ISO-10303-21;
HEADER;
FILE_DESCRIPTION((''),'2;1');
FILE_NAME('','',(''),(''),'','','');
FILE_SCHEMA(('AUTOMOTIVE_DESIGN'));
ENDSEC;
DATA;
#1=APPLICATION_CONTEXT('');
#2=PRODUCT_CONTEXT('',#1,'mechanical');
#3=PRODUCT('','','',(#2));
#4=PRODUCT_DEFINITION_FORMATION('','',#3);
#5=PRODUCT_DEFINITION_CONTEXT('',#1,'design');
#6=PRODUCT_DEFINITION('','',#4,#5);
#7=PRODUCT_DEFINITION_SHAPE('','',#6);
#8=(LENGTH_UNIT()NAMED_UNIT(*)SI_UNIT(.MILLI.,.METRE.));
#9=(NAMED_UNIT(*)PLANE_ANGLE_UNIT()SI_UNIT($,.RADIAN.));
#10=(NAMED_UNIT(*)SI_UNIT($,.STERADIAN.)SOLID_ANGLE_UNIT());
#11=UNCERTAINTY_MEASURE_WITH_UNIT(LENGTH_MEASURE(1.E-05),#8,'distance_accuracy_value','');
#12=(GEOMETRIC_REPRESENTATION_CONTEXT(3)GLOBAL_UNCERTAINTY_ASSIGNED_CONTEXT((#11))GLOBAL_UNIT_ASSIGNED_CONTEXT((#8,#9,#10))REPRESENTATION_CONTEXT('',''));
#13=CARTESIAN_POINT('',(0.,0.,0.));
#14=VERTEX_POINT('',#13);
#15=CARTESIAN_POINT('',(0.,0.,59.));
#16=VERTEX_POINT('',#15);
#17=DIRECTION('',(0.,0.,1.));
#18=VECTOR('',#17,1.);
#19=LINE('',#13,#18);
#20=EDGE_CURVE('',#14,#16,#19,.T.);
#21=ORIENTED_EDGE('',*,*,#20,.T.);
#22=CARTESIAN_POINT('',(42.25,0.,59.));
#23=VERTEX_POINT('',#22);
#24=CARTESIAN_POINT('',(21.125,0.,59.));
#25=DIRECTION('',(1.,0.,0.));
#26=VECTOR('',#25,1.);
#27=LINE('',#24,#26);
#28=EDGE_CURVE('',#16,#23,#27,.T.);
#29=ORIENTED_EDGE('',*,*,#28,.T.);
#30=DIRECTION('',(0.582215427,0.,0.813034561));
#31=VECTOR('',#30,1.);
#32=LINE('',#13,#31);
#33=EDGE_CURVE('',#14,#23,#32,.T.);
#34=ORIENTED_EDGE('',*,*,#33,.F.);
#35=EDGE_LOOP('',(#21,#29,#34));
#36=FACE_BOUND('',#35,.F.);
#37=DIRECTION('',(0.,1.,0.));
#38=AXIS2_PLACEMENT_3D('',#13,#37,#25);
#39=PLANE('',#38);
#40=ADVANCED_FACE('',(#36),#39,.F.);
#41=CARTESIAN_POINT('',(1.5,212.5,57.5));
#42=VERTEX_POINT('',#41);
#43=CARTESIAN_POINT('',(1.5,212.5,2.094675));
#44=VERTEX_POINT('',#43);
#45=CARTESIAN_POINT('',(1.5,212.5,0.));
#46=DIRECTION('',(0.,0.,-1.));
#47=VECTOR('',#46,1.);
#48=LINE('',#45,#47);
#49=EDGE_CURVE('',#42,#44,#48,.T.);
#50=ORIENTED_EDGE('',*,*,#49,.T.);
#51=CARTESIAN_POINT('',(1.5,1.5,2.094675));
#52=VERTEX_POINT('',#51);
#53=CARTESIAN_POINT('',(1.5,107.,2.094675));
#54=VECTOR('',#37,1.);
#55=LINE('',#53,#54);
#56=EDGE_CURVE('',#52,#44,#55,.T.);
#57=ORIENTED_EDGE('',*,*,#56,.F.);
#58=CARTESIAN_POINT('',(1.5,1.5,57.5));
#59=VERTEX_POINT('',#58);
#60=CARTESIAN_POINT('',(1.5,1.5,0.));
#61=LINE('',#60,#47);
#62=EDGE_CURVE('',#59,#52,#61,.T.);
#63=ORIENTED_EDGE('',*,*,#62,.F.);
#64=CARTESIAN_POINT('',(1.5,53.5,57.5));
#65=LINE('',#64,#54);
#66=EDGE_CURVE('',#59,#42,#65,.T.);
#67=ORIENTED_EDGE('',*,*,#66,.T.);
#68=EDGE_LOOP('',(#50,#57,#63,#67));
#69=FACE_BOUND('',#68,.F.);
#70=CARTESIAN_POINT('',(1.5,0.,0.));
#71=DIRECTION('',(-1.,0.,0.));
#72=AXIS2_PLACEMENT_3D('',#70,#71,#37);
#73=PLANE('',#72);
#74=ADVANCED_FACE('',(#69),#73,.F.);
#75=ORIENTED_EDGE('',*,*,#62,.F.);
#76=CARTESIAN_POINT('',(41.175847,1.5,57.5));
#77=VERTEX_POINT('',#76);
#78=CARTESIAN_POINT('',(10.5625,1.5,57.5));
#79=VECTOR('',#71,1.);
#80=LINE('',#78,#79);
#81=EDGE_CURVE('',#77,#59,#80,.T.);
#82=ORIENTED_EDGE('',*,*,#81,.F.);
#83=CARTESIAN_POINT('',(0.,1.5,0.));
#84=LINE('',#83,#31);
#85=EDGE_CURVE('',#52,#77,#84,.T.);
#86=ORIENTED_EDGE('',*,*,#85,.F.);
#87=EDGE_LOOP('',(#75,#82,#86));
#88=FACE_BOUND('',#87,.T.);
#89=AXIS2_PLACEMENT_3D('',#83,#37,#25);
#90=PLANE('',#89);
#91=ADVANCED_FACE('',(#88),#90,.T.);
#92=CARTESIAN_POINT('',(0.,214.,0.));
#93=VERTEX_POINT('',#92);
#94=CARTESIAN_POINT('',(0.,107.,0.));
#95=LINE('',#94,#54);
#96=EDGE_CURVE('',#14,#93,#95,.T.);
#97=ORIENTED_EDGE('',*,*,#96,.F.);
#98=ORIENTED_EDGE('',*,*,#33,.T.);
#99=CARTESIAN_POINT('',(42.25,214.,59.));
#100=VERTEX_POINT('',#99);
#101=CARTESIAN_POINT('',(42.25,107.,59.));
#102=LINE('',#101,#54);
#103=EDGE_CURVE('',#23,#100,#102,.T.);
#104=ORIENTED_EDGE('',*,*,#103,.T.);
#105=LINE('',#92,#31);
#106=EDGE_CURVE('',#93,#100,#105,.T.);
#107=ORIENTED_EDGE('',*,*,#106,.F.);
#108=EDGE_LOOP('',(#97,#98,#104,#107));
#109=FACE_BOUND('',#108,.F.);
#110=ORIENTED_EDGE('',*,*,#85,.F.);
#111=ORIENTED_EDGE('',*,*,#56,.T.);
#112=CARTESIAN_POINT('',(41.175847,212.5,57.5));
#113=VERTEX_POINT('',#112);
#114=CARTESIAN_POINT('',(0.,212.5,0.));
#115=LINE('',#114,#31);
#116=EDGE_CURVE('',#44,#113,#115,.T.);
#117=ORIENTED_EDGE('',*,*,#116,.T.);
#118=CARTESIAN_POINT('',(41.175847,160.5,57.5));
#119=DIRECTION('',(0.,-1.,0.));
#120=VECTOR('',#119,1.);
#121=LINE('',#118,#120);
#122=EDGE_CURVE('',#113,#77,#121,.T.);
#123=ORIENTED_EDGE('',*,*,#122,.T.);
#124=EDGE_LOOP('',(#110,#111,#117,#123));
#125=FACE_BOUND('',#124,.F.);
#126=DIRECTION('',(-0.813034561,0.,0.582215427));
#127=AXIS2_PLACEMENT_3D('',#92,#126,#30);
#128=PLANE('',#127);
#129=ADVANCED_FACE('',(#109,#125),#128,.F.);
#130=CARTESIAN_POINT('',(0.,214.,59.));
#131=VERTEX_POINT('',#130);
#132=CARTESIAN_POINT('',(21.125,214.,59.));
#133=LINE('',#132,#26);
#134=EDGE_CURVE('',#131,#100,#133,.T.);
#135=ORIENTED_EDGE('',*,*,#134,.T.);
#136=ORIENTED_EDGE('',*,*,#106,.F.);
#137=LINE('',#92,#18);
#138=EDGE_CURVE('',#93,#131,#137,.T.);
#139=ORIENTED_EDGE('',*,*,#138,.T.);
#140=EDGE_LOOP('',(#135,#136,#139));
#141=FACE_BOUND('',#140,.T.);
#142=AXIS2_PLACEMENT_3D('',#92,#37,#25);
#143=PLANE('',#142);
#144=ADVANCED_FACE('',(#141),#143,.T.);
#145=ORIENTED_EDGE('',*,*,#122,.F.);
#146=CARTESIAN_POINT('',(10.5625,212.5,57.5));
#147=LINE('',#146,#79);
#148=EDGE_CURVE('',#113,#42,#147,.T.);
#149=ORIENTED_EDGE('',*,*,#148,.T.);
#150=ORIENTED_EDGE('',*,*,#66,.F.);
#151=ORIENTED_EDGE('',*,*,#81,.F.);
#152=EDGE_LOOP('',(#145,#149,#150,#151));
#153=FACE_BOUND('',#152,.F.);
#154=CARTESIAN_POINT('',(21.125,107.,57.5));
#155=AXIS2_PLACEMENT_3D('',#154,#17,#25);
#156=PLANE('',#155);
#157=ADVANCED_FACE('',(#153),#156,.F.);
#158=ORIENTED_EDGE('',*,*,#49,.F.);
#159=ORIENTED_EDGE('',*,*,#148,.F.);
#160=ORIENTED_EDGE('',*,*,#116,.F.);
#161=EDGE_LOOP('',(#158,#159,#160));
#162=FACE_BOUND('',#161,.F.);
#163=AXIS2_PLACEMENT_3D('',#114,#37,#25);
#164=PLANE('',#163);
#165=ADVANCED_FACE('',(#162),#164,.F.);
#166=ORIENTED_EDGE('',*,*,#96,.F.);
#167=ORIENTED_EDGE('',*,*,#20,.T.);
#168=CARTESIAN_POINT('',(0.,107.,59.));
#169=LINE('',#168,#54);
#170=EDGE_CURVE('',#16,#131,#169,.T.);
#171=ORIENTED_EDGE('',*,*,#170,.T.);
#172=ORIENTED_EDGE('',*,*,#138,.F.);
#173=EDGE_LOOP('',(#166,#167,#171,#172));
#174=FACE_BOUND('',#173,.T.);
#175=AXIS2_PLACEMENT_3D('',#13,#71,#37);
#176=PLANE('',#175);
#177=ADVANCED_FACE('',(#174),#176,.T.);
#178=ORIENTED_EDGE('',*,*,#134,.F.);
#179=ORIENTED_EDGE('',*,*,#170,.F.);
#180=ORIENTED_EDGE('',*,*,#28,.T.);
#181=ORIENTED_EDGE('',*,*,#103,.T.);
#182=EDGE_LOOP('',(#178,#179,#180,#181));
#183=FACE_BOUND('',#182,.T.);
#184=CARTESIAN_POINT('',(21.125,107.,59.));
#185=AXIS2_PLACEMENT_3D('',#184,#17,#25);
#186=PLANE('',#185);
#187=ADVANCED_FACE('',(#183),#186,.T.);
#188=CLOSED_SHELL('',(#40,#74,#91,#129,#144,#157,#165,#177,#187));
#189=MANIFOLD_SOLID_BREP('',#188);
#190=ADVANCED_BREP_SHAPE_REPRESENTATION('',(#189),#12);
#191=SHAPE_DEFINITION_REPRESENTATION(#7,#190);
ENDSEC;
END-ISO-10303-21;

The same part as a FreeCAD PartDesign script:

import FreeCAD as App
import Part
import Sketcher

V = App.Vector
Q = App.Units.Quantity


def faces_at(feature, points):
    """Names of the faces that lie closest to the given points."""
    faces = feature.Shape.Faces
    near = lambda p: min(range(len(faces)), key=lambda i: faces[i].distToShape(Part.Vertex(*p))[0])
    return sorted({f"Face{near(p) + 1}" for p in points})

doc = App.newDocument("Part")
body = doc.addObject("PartDesign::Body", "Body")

# Sketch on XY plane
sketch1 = body.newObject("Sketcher::SketchObject", "Sketch")
sketch1.AttachmentSupport = (doc.getObject("XY_Plane"), [""])
sketch1.MapMode = "FlatFace"
sketch1.addGeometry([
    Part.LineSegment(V(0, 214, 0), V(0, 0, 0)),
    Part.LineSegment(V(0, 0, 0), V(42, 0, 0)),
    Part.LineSegment(V(42, 0, 0), V(42, 214, 0)),
    Part.LineSegment(V(42, 214, 0), V(0, 214, 0)),
], False)
sketch1.addConstraint([
    Sketcher.Constraint("Coincident", 0, 2, 1, 1),
    Sketcher.Constraint("Coincident", 1, 2, 2, 1),
    Sketcher.Constraint("Coincident", 2, 2, 3, 1),
    Sketcher.Constraint("Coincident", 3, 2, 0, 1),
    Sketcher.Constraint("Vertical", 0),
    Sketcher.Constraint("Horizontal", 1),
    Sketcher.Constraint("Vertical", 2),
    Sketcher.Constraint("Horizontal", 3),
    Sketcher.Constraint("Coincident", 0, 2, -1, 1),
    Sketcher.Constraint("DistanceY", 0, 2, 0, 1, Q("214 mm")),
    Sketcher.Constraint("DistanceX", 1, 1, 1, 2, Q("42.25 mm")),
])
pad1 = body.newObject("PartDesign::Pad", "Pad")
pad1.Profile = sketch1
pad1.Length = 59

# Sketch on XZ plane
sketch2 = body.newObject("Sketcher::SketchObject", "Sketch001")
sketch2.AttachmentSupport = (doc.getObject("XZ_Plane"), [""])
sketch2.MapMode = "FlatFace"
sketch2.AttachmentOffset = App.Placement(V(0, 0, -214), App.Rotation())
sketch2.addGeometry([
    Part.LineSegment(V(0, 0, 0), V(42, 59, 0)),
    Part.LineSegment(V(42, 59, 0), V(42, 0, 0)),
    Part.LineSegment(V(42, 0, 0), V(0, 0, 0)),
], False)
sketch2.addConstraint([
    Sketcher.Constraint("Coincident", 0, 2, 1, 1),
    Sketcher.Constraint("Coincident", 1, 2, 2, 1),
    Sketcher.Constraint("Coincident", 2, 2, 0, 1),
    Sketcher.Constraint("Vertical", 1),
    Sketcher.Constraint("Horizontal", 2),
    Sketcher.Constraint("Coincident", 2, 2, -1, 1),
    Sketcher.Constraint("DistanceY", 1, 2, 1, 1, Q("59 mm")),
    Sketcher.Constraint("DistanceX", 2, 2, 2, 1, Q("42.25 mm")),
])
pocket1 = body.newObject("PartDesign::Pocket", "Pocket")
pocket1.Profile = sketch2
pocket1.Type = "ThroughAll"
pocket1.Reversed = True
doc.recompute()

thickness = body.newObject("PartDesign::Thickness", "Thickness")
thickness.Base = (pocket1, faces_at(pocket1, [(21.125, 107, 29.5)]))
thickness.Value = 1.5
thickness.Reversed = True
thickness.Join = "Arc"

doc.recompute()
